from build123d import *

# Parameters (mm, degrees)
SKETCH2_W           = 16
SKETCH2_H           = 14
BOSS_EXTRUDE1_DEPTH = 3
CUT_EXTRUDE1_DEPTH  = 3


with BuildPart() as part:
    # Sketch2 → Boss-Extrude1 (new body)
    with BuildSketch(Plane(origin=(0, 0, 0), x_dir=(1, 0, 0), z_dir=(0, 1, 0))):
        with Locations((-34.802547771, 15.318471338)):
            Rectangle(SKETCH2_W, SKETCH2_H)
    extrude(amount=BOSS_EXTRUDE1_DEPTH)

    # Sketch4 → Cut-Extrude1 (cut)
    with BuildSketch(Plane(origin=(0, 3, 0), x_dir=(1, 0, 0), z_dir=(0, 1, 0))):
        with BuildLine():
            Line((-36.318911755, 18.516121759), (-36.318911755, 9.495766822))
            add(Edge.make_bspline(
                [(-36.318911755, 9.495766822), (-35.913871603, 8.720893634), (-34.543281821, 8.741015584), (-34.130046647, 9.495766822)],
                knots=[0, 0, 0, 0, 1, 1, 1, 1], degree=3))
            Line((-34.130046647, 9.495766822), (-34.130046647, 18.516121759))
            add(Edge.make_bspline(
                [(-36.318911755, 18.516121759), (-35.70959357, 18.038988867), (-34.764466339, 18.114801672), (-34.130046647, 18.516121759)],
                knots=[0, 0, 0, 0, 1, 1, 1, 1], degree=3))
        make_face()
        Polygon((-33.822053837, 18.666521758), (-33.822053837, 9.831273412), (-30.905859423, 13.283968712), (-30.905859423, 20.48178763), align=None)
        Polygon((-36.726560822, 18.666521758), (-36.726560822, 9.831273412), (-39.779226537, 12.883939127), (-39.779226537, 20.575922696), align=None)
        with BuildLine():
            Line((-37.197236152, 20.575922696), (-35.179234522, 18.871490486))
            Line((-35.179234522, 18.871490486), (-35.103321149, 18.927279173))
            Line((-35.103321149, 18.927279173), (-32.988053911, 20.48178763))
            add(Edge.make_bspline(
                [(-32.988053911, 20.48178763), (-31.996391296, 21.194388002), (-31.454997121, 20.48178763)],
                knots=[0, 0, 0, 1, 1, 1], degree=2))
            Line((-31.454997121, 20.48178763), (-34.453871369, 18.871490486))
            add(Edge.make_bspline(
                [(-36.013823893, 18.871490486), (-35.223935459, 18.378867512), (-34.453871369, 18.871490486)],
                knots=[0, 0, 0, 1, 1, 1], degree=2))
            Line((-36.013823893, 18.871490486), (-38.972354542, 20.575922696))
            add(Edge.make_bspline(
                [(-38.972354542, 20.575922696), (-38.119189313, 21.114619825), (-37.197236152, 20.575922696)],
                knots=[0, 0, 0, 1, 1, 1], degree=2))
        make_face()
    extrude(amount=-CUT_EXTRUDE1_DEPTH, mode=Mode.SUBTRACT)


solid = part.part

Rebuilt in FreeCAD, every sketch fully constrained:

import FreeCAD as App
import Part
import Sketcher
Q = App.Units.Quantity


def add_polygon(sketch, points):
    """Adds a closed chain of lines whose ends are joined by coincident constraints."""
    first, n = sketch.GeometryCount, len(points)
    for a, b in zip(points, points[1:] + points[:1]):
        sketch.addGeometry(Part.LineSegment(App.Vector(*a, 0), App.Vector(*b, 0)), False)
    for i in range(n):
        sketch.addConstraint(Sketcher.Constraint("Coincident", first + i, 2, first + (i + 1) % n, 1))

doc = App.newDocument("Part")
body = doc.addObject("PartDesign::Body", "Body")

# Sketch on XZ plane
sketch1 = body.newObject("Sketcher::SketchObject", "Sketch")
sketch1.AttachmentSupport = (doc.getObject("XZ_Plane"), [""])
sketch1.MapMode = "FlatFace"
add_polygon(sketch1, [(-43, -22), (-43, -8), (-27, -8), (-27, -22)])  # lines 0-3
sketch1.addConstraint([
    Sketcher.Constraint("Vertical", 0),
    Sketcher.Constraint("Horizontal", 1),
    Sketcher.Constraint("Vertical", 2),
    Sketcher.Constraint("Horizontal", 3),
    Sketcher.Constraint("DistanceX", 1, 1, 1, 2, Q("16 mm")),
    Sketcher.Constraint("DistanceY", 0, 1, 0, 2, Q("14 mm")),
    Sketcher.Constraint("DistanceY", 0, 2, -1, 1, Q("8.318471 mm")),
    Sketcher.Constraint("DistanceX", 0, 2, -1, 1, Q("42.802548 mm")),
])
pad1 = body.newObject("PartDesign::Pad", "Pad")
pad1.Profile = sketch1
pad1.Length = 3
pad1.Reversed = True

# Sketch on XZ plane
sketch2 = body.newObject("Sketcher::SketchObject", "Sketch001")
sketch2.AttachmentSupport = (doc.getObject("XZ_Plane"), [""])
sketch2.MapMode = "FlatFace"
sketch2.AttachmentOffset = App.Placement(App.Vector(0, 0, -3), App.Rotation())
sketch2.addGeometry(Part.LineSegment(App.Vector(-36.318912, -18.516122, 0), App.Vector(-36.318912, -9.495767, 0)), False)  # 0
sketch2.addGeometry(Part.BSplineCurve([App.Vector(-36.318912, -9.495767, 0), App.Vector(-35.913872, -8.720894, 0), App.Vector(-34.543282, -8.741016, 0), App.Vector(-34.130047, -9.495767, 0)], [4, 4], [0, 1], False, 3, [1, 1, 1, 1], False), False)  # 1
sketch2.addGeometry(Part.LineSegment(App.Vector(-34.130047, -9.495767, 0), App.Vector(-34.130047, -18.516122, 0)), False)  # 2
sketch2.addGeometry(Part.BSplineCurve([App.Vector(-36.318912, -18.516122, 0), App.Vector(-35.709594, -18.038989, 0), App.Vector(-34.764466, -18.114802, 0), App.Vector(-34.130047, -18.516122, 0)], [4, 4], [0, 1], False, 3, [1, 1, 1, 1], False), False)  # 3
add_polygon(sketch2, [(-33.822054, -18.666522), (-33.822054, -9.831273), (-30.905859, -13.283969), (-30.905859, -20.481788)])  # lines 4-7
add_polygon(sketch2, [(-36.726561, -9.831273), (-36.726561, -18.666522), (-39.779227, -20.575923), (-39.779227, -12.883939)])  # lines 8-11
sketch2.addGeometry(Part.LineSegment(App.Vector(-35.179235, -18.87149, 0), App.Vector(-37.197236, -20.575923, 0)), False)  # 12
sketch2.addGeometry(Part.BSplineCurve([App.Vector(-38.972355, -20.575923, 0), App.Vector(-38.119189, -21.11462, 0), App.Vector(-37.197236, -20.575923, 0)], [3, 3], [0, 1], False, 2, [1, 1, 1], False), False)  # 13
sketch2.addGeometry(Part.LineSegment(App.Vector(-38.972355, -20.575923, 0), App.Vector(-36.013824, -18.87149, 0)), False)  # 14
sketch2.addGeometry(Part.BSplineCurve([App.Vector(-36.013824, -18.87149, 0), App.Vector(-35.223935, -18.378868, 0), App.Vector(-34.453871, -18.87149, 0)], [3, 3], [0, 1], False, 2, [1, 1, 1], False), False)  # 15
sketch2.addGeometry(Part.LineSegment(App.Vector(-34.453871, -18.87149, 0), App.Vector(-31.454997, -20.481788, 0)), False)  # 16
sketch2.addGeometry(Part.BSplineCurve([App.Vector(-32.988054, -20.481788, 0), App.Vector(-31.996391, -21.194388, 0), App.Vector(-31.454997, -20.481788, 0)], [3, 3], [0, 1], False, 2, [1, 1, 1], False), False)  # 17
sketch2.addGeometry(Part.LineSegment(App.Vector(-32.988054, -20.481788, 0), App.Vector(-35.103321, -18.927279, 0)), False)  # 18
sketch2.addGeometry(Part.LineSegment(App.Vector(-35.103321, -18.927279, 0), App.Vector(-35.179235, -18.87149, 0)), False)  # 19
sketch2.addConstraint([
    Sketcher.Constraint("Block", 1),
    Sketcher.Constraint("Block", 3),
    Sketcher.Constraint("Block", 13),
    Sketcher.Constraint("Block", 15),
    Sketcher.Constraint("Block", 17),
    Sketcher.Constraint("Coincident", 0, 2, 1, 1),
    Sketcher.Constraint("Coincident", 1, 2, 2, 1),
    Sketcher.Constraint("Coincident", 2, 2, 3, 2),
    Sketcher.Constraint("Coincident", 3, 1, 0, 1),
    Sketcher.Constraint("Coincident", 12, 2, 13, 2),
    Sketcher.Constraint("Coincident", 13, 1, 14, 1),
    Sketcher.Constraint("Coincident", 14, 2, 15, 1),
    Sketcher.Constraint("Coincident", 15, 2, 16, 1),
    Sketcher.Constraint("Coincident", 16, 2, 17, 2),
    Sketcher.Constraint("Coincident", 17, 1, 18, 1),
    Sketcher.Constraint("Coincident", 18, 2, 19, 1),
    Sketcher.Constraint("Coincident", 19, 2, 12, 1),
    Sketcher.Constraint("Vertical", 4),
    Sketcher.Constraint("Vertical", 6),
    Sketcher.Constraint("Vertical", 8),
    Sketcher.Constraint("Vertical", 10),
    Sketcher.Constraint("DistanceY", 4, 1, 4, 2, Q("8.835248 mm")),
    Sketcher.Constraint("DistanceY", 6, 2, 6, 1, Q("7.197819 mm")),
    Sketcher.Constraint("DistanceY", 8, 2, 8, 1, Q("8.835248 mm")),
    Sketcher.Constraint("DistanceY", 5, 2, 0, 2, Q("3.788202 mm")),
    Sketcher.Constraint("DistanceY", 7, 2, 2, 2, Q("0.1504 mm")),
    Sketcher.Constraint("DistanceY", 8, 2, 2, 2, Q("0.1504 mm")),
    Sketcher.Constraint("DistanceX", 8, 2, 6, 2, Q("5.820701 mm")),
    Sketcher.Constraint("DistanceY", 9, 2, 8, 2, Q("1.909401 mm")),
    Sketcher.Constraint("Distance", 11, Q("4.317121 mm")),
    Sketcher.Constraint("Distance", 12, Q("2.641481 mm")),
    Sketcher.Constraint("Distance", 19, Q("0.094208 mm")),
    Sketcher.Constraint("DistanceY", 10, 1, 10, 2, Q("7.691984 mm")),
    Sketcher.Constraint("DistanceX", 5, 2, -1, 1, Q("30.905859 mm")),
    Sketcher.Constraint("DistanceX", 18, 2, -1, 1, Q("35.103321 mm")),
    Sketcher.Constraint("DistanceY", 18, 2, -1, 1, Q("18.927279 mm")),
    Sketcher.Constraint("DistanceX", 14, 2, 7, 2, Q("2.19177 mm")),
])
pocket1 = body.newObject("PartDesign::Pocket", "Pocket")
pocket1.Profile = sketch2
pocket1.Length = 3
pocket1.Reversed = True

doc.recompute()
